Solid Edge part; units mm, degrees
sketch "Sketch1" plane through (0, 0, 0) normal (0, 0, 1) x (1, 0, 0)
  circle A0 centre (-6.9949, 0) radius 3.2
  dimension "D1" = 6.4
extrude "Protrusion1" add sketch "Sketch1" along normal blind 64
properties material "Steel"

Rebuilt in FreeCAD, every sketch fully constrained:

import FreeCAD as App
import Part
import Sketcher

doc = App.newDocument("Part")
params = doc.addObject("Spreadsheet::Sheet", "Params")
for row, (alias, value) in enumerate([
    ("sketch1_diameter", "6.4 mm"),
    ("pad1_length", "64 mm"),
], start=1):
    params.set(f"A{row}", alias)
    params.set(f"B{row}", "=" + value)
    params.setAlias(f"B{row}", alias)

body = doc.addObject("PartDesign::Body", "Body")

sketch1 = body.newObject("Sketcher::SketchObject", "Sketch")
sketch1.AttachmentSupport = (doc.getObject("XY_Plane"), [""])
sketch1.MapMode = "FlatFace"
sketch1.addGeometry(Part.Circle(App.Vector(-7, 0, 0), App.Vector(0, 0, 1), 3.2), False)
sketch1.addConstraint([
    Sketcher.Constraint("PointOnObject", 0, 3, -1),
    Sketcher.Constraint("Diameter", 0, 6.4),
    Sketcher.Constraint("DistanceX", 0, 3, -1, 1, 6.995),
])
sketch1.setExpression("Constraints[1]", "Params.sketch1_diameter")
pad1 = body.newObject("PartDesign::Pad", "Pad")
pad1.Profile = sketch1
pad1.setExpression("Length", "Params.pad1_length")

doc.recompute()
